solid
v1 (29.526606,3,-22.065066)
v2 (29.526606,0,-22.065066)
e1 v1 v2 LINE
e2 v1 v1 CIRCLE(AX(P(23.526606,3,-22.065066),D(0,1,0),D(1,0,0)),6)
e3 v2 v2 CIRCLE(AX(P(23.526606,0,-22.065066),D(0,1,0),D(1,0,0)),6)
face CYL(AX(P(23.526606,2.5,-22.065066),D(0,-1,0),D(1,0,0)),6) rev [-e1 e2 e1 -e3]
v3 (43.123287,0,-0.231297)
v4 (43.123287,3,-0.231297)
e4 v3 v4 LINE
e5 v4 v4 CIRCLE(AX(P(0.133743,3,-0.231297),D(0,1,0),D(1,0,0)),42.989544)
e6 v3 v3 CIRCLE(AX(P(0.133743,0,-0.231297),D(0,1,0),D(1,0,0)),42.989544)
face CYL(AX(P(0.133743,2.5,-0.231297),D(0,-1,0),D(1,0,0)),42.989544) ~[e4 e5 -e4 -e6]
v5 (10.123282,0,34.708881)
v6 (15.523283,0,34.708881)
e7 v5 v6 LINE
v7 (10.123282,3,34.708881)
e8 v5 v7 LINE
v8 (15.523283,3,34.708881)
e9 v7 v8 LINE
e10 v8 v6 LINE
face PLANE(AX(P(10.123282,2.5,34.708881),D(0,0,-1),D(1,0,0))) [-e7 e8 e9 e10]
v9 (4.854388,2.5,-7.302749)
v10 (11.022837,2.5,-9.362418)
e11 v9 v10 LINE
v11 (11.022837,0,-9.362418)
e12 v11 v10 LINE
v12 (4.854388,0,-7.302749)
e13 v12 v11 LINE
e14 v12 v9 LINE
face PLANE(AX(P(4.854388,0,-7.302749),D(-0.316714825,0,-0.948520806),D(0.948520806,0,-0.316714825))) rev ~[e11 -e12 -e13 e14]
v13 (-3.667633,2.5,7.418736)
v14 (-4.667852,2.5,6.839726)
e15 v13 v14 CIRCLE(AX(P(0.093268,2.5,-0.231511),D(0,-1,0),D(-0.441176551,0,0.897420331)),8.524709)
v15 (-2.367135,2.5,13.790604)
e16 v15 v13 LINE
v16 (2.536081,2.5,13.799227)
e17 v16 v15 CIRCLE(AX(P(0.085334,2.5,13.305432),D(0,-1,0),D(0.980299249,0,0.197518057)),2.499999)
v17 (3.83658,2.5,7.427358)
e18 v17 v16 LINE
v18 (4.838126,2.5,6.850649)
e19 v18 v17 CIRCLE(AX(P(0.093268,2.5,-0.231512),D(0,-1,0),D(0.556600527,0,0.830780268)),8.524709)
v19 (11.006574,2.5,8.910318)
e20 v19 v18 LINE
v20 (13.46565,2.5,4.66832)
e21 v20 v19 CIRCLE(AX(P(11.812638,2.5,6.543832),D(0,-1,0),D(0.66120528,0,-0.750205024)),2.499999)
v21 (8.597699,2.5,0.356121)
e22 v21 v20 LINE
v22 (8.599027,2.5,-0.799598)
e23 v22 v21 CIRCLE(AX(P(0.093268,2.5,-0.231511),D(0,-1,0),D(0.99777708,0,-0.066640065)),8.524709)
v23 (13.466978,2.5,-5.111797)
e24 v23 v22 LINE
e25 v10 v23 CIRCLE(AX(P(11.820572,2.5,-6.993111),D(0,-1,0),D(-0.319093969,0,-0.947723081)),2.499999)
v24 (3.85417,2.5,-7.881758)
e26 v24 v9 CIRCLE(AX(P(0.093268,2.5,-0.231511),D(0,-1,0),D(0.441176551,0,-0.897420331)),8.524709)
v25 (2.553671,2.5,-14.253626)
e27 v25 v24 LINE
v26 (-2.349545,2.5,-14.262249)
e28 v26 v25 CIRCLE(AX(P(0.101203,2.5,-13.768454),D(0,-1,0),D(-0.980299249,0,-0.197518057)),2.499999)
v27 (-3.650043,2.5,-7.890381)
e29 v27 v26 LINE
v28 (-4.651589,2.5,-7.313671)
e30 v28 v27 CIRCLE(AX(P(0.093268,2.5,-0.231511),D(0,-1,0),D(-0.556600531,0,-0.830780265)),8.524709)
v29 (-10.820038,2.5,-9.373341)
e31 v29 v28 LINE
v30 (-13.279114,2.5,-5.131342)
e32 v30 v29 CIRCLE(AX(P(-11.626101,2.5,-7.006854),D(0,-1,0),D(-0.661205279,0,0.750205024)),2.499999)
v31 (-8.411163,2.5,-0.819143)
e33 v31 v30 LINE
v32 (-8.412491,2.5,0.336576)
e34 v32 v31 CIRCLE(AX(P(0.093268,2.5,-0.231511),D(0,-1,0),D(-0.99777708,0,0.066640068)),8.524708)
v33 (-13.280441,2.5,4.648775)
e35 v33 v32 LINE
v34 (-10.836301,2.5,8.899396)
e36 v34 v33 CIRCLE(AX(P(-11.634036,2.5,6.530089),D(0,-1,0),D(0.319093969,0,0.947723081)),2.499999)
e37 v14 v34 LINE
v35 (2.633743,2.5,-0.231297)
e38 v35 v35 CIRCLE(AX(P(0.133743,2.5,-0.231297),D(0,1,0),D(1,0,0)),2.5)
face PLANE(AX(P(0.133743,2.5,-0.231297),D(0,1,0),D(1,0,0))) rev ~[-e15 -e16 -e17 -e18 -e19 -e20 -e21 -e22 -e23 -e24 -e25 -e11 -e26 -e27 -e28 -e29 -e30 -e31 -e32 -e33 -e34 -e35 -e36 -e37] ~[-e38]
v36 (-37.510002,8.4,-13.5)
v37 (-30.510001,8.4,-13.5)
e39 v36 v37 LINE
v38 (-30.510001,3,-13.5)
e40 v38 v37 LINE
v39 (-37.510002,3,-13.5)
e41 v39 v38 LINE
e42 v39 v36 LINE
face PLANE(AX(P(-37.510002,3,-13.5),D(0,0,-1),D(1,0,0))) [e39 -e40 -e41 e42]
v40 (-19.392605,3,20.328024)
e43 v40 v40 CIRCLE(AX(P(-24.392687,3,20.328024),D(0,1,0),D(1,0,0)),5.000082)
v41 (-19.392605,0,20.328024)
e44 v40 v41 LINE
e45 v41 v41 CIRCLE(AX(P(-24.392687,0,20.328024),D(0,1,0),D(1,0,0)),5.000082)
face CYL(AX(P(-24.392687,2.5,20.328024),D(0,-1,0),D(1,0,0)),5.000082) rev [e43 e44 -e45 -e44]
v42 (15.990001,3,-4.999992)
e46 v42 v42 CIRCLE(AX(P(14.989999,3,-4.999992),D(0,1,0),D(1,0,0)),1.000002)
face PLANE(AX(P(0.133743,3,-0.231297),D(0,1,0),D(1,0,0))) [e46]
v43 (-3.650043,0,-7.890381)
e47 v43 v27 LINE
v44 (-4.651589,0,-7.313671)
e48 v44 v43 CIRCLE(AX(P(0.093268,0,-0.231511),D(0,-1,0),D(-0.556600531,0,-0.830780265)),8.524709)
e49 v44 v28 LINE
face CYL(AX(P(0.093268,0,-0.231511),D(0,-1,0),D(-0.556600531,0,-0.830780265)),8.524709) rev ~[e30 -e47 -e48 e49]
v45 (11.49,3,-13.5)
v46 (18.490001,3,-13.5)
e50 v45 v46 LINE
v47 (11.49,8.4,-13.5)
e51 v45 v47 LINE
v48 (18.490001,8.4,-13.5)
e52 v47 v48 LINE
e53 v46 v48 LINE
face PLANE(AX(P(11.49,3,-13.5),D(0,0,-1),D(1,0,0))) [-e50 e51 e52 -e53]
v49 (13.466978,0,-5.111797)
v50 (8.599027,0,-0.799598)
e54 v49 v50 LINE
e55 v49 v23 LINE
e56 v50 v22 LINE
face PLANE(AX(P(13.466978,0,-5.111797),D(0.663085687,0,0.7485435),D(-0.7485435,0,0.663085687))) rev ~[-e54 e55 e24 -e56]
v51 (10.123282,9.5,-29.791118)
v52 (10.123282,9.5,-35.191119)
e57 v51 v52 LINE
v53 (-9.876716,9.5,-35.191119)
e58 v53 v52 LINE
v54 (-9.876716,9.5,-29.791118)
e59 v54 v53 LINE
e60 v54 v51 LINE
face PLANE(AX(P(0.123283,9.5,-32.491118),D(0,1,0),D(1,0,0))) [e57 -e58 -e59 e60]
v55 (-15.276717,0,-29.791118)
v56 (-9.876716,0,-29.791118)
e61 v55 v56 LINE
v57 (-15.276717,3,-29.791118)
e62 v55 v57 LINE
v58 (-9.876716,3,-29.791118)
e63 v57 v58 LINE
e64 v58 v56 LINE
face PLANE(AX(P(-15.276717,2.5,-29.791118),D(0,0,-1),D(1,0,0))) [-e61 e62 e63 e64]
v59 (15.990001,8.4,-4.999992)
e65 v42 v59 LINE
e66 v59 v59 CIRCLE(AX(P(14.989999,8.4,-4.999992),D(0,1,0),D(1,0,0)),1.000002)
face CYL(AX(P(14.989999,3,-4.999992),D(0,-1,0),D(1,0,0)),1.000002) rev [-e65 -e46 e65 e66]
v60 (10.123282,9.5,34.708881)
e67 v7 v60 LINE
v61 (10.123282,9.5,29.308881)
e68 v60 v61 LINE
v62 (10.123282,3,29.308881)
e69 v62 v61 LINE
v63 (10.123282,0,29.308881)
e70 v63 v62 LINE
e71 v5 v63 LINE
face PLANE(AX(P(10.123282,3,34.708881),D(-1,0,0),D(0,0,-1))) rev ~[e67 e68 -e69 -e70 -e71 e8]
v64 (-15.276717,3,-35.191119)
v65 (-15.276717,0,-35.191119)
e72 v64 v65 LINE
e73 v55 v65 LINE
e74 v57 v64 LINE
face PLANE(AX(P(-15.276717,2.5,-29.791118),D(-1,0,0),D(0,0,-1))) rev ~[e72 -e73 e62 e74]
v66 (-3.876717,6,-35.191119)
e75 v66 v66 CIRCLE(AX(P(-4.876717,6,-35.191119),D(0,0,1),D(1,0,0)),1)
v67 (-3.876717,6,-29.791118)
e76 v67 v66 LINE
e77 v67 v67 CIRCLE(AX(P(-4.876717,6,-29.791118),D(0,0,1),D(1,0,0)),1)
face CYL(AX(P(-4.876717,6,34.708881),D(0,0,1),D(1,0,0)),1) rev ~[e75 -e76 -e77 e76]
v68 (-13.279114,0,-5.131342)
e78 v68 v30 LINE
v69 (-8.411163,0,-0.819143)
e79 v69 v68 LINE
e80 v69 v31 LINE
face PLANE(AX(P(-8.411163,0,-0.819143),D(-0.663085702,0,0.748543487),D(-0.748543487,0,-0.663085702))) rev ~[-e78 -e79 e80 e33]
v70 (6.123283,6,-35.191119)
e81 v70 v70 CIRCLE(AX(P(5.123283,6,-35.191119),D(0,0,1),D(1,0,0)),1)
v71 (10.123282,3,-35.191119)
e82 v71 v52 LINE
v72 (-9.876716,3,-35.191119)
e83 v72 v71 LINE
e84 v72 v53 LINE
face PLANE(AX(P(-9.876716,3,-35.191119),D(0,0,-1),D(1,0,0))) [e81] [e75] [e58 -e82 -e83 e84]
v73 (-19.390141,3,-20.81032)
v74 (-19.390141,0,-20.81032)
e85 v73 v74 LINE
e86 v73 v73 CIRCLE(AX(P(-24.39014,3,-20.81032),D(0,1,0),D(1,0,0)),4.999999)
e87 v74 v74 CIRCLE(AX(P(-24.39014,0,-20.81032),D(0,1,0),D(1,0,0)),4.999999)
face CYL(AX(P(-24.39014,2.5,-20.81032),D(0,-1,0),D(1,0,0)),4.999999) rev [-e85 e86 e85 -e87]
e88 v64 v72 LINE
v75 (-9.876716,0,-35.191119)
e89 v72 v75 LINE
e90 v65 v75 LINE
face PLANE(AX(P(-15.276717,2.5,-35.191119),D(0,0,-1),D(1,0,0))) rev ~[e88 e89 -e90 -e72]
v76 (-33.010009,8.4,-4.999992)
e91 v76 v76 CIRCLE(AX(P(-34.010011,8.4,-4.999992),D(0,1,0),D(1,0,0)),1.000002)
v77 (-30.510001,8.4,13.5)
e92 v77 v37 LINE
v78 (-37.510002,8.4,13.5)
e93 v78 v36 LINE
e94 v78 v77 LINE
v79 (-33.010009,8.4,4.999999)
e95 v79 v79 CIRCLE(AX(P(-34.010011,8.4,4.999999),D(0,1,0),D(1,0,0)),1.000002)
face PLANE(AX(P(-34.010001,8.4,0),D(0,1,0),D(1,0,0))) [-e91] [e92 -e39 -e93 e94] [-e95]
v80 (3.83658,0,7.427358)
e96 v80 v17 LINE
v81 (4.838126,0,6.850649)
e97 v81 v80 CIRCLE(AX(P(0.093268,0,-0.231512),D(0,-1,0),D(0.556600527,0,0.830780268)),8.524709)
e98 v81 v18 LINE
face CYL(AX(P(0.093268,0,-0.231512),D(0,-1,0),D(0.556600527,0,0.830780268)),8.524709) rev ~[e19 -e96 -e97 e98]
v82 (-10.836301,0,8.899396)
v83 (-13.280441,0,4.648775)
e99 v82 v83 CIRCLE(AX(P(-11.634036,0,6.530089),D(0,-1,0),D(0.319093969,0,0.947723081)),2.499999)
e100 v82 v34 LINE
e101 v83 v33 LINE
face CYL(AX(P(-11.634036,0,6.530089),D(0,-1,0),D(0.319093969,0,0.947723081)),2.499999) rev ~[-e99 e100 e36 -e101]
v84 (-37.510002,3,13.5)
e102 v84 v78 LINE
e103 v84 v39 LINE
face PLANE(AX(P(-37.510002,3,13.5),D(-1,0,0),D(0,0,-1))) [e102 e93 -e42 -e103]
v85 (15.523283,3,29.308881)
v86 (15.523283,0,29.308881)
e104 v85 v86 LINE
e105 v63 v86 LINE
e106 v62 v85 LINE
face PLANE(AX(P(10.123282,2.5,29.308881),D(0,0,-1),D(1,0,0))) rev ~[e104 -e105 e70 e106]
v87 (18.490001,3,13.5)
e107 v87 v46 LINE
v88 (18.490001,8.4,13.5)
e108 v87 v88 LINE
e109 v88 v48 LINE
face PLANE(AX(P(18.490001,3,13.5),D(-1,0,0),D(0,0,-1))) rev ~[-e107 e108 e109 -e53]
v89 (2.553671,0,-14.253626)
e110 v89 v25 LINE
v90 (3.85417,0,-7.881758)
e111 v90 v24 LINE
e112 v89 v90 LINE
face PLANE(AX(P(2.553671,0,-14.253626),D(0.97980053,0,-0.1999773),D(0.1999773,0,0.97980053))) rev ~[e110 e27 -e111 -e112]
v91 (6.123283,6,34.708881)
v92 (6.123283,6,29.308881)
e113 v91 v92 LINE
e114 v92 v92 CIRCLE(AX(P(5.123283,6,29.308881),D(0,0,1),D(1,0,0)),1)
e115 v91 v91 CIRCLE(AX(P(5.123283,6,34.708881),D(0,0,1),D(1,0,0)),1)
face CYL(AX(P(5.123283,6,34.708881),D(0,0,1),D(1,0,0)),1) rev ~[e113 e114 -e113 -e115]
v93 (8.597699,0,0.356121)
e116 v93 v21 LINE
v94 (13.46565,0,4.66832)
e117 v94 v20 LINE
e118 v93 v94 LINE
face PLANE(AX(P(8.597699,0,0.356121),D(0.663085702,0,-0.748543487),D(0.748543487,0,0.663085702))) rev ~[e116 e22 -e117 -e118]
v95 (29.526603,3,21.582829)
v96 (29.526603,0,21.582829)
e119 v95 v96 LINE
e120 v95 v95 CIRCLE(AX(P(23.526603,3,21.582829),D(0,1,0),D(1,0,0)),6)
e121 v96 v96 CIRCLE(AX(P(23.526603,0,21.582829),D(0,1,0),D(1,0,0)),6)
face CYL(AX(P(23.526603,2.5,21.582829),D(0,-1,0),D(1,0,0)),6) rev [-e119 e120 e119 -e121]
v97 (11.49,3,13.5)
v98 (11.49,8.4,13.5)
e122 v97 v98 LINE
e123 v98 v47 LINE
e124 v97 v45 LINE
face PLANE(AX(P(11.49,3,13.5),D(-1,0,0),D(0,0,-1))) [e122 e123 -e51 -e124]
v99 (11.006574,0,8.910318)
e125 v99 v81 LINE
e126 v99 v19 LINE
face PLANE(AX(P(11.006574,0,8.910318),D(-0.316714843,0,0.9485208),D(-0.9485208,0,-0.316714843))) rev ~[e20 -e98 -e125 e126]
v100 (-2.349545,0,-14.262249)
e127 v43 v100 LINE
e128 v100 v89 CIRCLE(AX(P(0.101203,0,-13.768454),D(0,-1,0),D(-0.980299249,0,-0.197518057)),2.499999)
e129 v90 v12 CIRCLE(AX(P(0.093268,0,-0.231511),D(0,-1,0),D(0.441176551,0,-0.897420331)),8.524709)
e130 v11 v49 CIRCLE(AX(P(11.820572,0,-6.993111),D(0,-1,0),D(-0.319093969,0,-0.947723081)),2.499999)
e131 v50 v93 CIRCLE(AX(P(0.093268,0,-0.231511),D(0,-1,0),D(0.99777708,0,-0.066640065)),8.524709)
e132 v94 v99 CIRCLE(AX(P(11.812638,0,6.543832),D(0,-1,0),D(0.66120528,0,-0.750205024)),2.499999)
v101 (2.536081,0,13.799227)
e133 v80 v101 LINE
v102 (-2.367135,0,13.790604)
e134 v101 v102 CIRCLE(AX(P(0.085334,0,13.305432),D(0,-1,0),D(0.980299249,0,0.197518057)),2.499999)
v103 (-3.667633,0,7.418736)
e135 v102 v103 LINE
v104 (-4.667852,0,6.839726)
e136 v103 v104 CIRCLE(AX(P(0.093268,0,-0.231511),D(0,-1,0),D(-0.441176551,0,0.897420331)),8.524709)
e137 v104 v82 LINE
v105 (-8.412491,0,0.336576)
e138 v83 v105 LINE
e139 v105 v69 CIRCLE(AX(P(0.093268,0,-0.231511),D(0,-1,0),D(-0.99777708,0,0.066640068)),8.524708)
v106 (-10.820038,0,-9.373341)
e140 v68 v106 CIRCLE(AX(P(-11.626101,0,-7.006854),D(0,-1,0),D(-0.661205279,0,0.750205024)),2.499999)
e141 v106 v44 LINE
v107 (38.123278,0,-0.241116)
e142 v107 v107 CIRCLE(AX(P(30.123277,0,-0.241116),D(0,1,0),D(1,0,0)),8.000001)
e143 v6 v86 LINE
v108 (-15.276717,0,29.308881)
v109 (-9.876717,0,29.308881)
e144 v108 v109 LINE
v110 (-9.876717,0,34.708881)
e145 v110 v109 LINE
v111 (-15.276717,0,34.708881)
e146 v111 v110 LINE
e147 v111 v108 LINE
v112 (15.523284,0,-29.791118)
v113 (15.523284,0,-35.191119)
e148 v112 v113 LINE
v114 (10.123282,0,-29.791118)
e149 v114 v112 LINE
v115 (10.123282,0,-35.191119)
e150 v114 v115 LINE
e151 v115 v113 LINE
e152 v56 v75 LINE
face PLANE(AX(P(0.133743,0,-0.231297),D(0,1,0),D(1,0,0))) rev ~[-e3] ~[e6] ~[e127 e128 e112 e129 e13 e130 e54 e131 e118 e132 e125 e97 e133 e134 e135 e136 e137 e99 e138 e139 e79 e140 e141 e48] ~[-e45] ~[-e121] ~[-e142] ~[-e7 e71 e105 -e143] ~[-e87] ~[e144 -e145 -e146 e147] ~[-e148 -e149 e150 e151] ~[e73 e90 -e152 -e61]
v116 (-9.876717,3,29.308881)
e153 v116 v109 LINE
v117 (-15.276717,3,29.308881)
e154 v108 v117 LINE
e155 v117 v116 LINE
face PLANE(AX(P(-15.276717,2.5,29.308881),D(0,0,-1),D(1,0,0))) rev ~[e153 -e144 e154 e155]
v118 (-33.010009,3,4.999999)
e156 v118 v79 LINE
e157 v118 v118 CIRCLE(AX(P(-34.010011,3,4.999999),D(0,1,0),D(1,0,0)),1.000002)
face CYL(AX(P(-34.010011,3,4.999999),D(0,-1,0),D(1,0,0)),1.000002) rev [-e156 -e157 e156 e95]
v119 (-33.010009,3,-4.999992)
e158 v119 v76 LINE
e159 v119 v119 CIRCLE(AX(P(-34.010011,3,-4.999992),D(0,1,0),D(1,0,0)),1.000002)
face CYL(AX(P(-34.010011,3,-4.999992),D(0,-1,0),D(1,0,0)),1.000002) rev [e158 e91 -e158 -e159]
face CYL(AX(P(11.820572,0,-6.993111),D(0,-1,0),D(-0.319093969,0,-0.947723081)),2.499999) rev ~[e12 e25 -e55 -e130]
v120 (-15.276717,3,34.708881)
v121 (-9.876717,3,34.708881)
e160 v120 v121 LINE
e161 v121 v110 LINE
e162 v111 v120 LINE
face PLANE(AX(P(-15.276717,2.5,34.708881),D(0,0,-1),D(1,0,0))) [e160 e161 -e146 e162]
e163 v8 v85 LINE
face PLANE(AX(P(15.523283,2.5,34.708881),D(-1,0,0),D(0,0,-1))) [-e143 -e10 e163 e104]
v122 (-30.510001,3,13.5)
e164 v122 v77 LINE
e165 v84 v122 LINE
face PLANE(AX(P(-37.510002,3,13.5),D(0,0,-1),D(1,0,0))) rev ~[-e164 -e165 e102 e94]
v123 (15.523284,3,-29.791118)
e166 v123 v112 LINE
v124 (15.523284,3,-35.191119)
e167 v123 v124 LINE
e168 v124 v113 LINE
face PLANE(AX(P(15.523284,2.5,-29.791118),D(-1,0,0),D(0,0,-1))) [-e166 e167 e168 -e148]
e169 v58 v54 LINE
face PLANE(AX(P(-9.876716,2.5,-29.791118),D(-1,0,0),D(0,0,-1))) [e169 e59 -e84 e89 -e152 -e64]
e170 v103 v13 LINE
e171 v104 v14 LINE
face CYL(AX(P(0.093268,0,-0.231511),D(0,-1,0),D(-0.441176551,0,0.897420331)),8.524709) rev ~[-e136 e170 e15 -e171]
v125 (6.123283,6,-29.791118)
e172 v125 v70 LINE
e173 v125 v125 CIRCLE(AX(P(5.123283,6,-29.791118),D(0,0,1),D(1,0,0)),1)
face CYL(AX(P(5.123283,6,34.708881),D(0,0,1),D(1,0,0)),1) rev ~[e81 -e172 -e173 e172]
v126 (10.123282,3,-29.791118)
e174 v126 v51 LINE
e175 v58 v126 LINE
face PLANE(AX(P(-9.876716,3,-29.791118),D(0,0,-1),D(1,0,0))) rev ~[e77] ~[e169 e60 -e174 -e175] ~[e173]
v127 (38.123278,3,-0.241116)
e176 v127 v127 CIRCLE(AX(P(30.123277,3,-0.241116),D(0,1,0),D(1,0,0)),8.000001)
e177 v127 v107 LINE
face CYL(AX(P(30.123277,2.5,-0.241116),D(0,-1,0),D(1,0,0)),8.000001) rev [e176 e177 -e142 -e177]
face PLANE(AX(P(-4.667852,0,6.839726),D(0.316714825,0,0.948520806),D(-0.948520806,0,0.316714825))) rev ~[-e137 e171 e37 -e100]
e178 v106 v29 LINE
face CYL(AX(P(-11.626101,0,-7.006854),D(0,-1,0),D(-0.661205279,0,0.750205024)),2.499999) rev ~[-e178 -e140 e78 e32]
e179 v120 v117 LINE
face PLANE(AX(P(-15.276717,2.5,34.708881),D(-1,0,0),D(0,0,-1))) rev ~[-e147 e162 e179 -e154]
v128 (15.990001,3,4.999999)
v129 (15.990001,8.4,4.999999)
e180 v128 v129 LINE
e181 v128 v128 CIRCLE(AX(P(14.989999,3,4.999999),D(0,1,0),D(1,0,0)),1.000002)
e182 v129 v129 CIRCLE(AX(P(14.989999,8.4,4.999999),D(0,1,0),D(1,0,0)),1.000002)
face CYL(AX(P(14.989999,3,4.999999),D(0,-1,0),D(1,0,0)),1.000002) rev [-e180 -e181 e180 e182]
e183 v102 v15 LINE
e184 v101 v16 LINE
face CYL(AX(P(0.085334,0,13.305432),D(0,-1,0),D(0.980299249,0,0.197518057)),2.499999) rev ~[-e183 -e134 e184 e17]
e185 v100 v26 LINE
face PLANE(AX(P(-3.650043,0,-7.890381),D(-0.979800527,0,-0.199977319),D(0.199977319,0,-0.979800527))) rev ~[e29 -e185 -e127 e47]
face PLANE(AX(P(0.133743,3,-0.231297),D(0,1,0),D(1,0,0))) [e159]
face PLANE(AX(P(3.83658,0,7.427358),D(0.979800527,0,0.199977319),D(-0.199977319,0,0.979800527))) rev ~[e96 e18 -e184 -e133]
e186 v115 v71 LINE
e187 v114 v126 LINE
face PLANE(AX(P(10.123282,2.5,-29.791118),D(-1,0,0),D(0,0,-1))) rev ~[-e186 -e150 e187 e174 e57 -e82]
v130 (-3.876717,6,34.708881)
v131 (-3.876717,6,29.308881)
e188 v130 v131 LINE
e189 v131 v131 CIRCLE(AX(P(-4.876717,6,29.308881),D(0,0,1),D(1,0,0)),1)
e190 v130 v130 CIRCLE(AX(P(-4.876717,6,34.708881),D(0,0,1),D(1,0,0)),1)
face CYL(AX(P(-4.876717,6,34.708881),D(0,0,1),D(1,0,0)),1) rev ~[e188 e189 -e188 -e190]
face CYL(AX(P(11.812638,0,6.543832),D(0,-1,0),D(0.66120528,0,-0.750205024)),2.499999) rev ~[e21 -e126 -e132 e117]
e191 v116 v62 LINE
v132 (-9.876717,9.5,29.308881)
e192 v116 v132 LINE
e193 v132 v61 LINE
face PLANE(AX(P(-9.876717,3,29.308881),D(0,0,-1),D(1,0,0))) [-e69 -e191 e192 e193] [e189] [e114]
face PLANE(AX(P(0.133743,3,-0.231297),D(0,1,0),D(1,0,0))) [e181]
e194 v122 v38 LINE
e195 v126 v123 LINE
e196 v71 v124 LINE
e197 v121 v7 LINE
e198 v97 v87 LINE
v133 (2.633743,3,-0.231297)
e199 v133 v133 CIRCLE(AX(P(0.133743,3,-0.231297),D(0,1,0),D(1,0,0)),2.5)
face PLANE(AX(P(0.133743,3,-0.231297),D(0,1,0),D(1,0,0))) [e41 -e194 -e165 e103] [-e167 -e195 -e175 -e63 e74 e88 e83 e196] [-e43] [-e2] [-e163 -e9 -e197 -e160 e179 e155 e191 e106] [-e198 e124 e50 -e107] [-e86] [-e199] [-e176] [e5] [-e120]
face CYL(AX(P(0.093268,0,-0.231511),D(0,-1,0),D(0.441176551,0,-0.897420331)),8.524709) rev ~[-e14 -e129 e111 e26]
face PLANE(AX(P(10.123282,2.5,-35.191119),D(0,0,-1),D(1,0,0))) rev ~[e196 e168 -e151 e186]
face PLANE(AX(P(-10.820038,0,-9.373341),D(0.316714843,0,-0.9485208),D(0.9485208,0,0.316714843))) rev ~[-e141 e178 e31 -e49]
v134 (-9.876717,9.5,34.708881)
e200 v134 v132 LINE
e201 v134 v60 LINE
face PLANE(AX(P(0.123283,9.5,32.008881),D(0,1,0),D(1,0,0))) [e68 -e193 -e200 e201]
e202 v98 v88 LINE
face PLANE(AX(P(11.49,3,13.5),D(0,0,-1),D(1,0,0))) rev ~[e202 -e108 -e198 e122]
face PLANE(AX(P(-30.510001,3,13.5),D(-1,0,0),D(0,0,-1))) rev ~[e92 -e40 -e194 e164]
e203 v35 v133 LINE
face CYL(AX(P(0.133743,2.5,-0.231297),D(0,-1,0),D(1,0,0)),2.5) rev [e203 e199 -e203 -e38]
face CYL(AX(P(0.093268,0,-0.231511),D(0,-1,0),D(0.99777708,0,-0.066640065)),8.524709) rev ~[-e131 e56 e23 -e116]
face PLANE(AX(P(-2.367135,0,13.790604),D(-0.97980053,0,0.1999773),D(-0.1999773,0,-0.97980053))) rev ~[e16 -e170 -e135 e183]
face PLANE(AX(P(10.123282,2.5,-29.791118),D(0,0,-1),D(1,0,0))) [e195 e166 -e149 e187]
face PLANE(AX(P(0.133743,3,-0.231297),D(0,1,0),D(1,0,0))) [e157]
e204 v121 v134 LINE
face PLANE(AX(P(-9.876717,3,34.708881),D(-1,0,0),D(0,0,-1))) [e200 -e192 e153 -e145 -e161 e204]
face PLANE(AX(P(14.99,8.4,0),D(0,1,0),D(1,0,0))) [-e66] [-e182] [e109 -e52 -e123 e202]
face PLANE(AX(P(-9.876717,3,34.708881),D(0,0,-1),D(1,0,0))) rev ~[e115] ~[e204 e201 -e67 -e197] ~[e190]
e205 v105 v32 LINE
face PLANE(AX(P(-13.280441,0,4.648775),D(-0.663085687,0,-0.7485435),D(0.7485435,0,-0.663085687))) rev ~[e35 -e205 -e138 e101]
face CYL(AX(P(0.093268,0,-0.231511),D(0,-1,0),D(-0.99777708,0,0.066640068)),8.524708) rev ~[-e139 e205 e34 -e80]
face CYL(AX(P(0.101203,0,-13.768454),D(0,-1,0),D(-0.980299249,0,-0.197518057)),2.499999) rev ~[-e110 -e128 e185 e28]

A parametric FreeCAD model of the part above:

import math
import FreeCAD as App
import Part
import Sketcher
from FreeCAD import Vector


def add_polygon(sketch, points):
    """Adds a closed chain of lines whose ends are joined by coincident constraints."""
    first, n = sketch.GeometryCount, len(points)
    for a, b in zip(points, points[1:] + points[:1]):
        sketch.addGeometry(Part.LineSegment(App.Vector(*a, 0), App.Vector(*b, 0)), False)
    for i in range(n):
        sketch.addConstraint(Sketcher.Constraint("Coincident", first + i, 2, first + (i + 1) % n, 1))

doc = App.newDocument("Part")
params = doc.addObject("Spreadsheet::Sheet", "Params")
for row, (alias, value) in enumerate([
    ("sketch1_diameter", "12 mm"),
    ("sketch1_diameter2", "16.000001 mm"),
    ("sketch1_radius", "2.499999 mm"),
    ("sketch1_width", "5.400001 mm"),
    ("pad1_length", "2.5 mm"),
    ("sketch2_diameter", "5 mm"),
    ("sketch2_diameter2", "12 mm"),
    ("sketch2_diameter3", "16.000001 mm"),
    ("sketch2_width", "5.400001 mm"),
    ("pad2_length", "0.5 mm"),
    ("sketch3_width", "19.999999 mm"),
    ("sketch3_height", "5.400001 mm"),
    ("pad3_length", "6.5 mm"),
    ("sketch4_diameter", "2 mm"),
    ("pocket1_length", "94.5 mm"),
    ("sketch5_width", "7.000001 mm"),
    ("sketch5_height", "27 mm"),
    ("pad4_length", "5.4 mm"),
], start=1):
    params.set(f"A{row}", alias)
    params.set(f"B{row}", "=" + value)
    params.setAlias(f"B{row}", alias)

body = doc.addObject("PartDesign::Body", "Body")

sketch1 = body.newObject("Sketcher::SketchObject", "Sketch")
sketch1.AttachmentSupport = (doc.getObject("XZ_Plane"), [""])
sketch1.MapMode = "FlatFace"
sketch1.addGeometry(Part.Circle(Vector(0.1, -0.2, 0), Vector(0, 0, 1), 43), False)
add_polygon(sketch1, [(-9.9, 34.7), (-15.3, 34.7), (-15.3, 29.3), (-9.9, 29.3)])
sketch1.addGeometry(Part.Circle(Vector(-24.4, 20.3, 0), Vector(0, 0, 1), 5), False)
sketch1.addGeometry(Part.ArcOfCircle(Part.Circle(Vector(0.1, -0.2, 0), Vector(0, 0, 1), 8.5), math.radians(-63.82), math.radians(-56.05)), False)
sketch1.addGeometry(Part.LineSegment(Vector(4.9, -7.3, 0), Vector(11, -9.4, 0)), False)
sketch1.addGeometry(Part.ArcOfCircle(Part.Circle(Vector(11.8, -7, 0), Vector(0, 0, 1), 2.5), math.radians(-109), math.radians(49)), False)
sketch1.addGeometry(Part.LineSegment(Vector(13.5, -5.1, 0), Vector(8.6, -0.8, 0)), False)
sketch1.addGeometry(Part.ArcOfCircle(Part.Circle(Vector(0.1, -0.2, 0), Vector(0, 0, 1), 8.5), math.radians(-3.82), math.radians(3.95)), False)
sketch1.addGeometry(Part.LineSegment(Vector(8.6, 0.4, 0), Vector(13.5, 4.7, 0)), False)
sketch1.addGeometry(Part.ArcOfCircle(Part.Circle(Vector(11.8, 6.5, 0), Vector(0, 0, 1), 2.5), math.radians(-49), math.radians(109)), False)
sketch1.addGeometry(Part.LineSegment(Vector(11, 8.9, 0), Vector(4.8, 6.9, 0)), False)
sketch1.addGeometry(Part.ArcOfCircle(Part.Circle(Vector(0.1, -0.2, 0), Vector(0, 0, 1), 8.5), math.radians(56.18), math.radians(63.95)), False)
sketch1.addGeometry(Part.LineSegment(Vector(3.8, 7.4, 0), Vector(2.5, 13.8, 0)), False)
sketch1.addGeometry(Part.ArcOfCircle(Part.Circle(Vector(0.1, 13.3, 0), Vector(0, 0, 1), 2.5), math.radians(11), math.radians(169)), False)
sketch1.addGeometry(Part.LineSegment(Vector(-2.4, 13.8, 0), Vector(-3.7, 7.4, 0)), False)
sketch1.addGeometry(Part.ArcOfCircle(Part.Circle(Vector(0.1, -0.2, 0), Vector(0, 0, 1), 8.5), math.radians(116.18), math.radians(123.95)), False)
sketch1.addGeometry(Part.LineSegment(Vector(-4.7, 6.8, 0), Vector(-10.8, 8.9, 0)), False)
sketch1.addGeometry(Part.ArcOfCircle(Part.Circle(Vector(-11.6, 6.5, 0), Vector(0, 0, 1), 2.5), math.radians(71), math.radians(229)), False)
sketch1.addGeometry(Part.LineSegment(Vector(-13.3, 4.6, 0), Vector(-8.4, 0.3, 0)), False)
sketch1.addGeometry(Part.ArcOfCircle(Part.Circle(Vector(0.1, -0.2, 0), Vector(0, 0, 1), 8.5), math.radians(176.18), math.radians(183.95)), False)
sketch1.addGeometry(Part.LineSegment(Vector(-8.4, -0.8, 0), Vector(-13.3, -5.1, 0)), False)
sketch1.addGeometry(Part.ArcOfCircle(Part.Circle(Vector(-11.6, -7, 0), Vector(0, 0, 1), 2.5), math.radians(131), math.radians(289)), False)
sketch1.addGeometry(Part.LineSegment(Vector(-10.8, -9.4, 0), Vector(-4.7, -7.3, 0)), False)
sketch1.addGeometry(Part.ArcOfCircle(Part.Circle(Vector(0.1, -0.2, 0), Vector(0, 0, 1), 8.5), math.radians(-123.82), math.radians(-116.05)), False)
sketch1.addGeometry(Part.LineSegment(Vector(-3.7, -7.9, 0), Vector(-2.3, -14.3, 0)), False)
sketch1.addGeometry(Part.ArcOfCircle(Part.Circle(Vector(0.1, -13.8, 0), Vector(0, 0, 1), 2.5), math.radians(-169), math.radians(-11)), False)
sketch1.addGeometry(Part.LineSegment(Vector(2.6, -14.3, 0), Vector(3.9, -7.9, 0)), False)
add_polygon(sketch1, [(15.5, 34.7), (10.1, 34.7), (10.1, 29.3), (15.5, 29.3)])
sketch1.addGeometry(Part.Circle(Vector(23.5, 21.6, 0), Vector(0, 0, 1), 6), False)
sketch1.addGeometry(Part.Circle(Vector(30.1, -0.2, 0), Vector(0, 0, 1), 8), False)
sketch1.addGeometry(Part.Circle(Vector(-24.4, -20.8, 0), Vector(0, 0, 1), 5), False)
add_polygon(sketch1, [(-9.9, -29.8), (-15.3, -29.8), (-15.3, -35.2), (-9.9, -35.2)])
add_polygon(sketch1, [(15.5, -29.8), (10.1, -29.8), (10.1, -35.2), (15.5, -35.2)])
sketch1.addGeometry(Part.Circle(Vector(23.5, -22.1, 0), Vector(0, 0, 1), 6), False)
sketch1.addConstraint([
    Sketcher.Constraint("Coincident", 6, 2, 7, 1),
    Sketcher.Constraint("Coincident", 7, 2, 8, 1),
    Sketcher.Constraint("Coincident", 8, 2, 9, 1),
    Sketcher.Constraint("Coincident", 9, 2, 10, 1),
    Sketcher.Constraint("Coincident", 10, 2, 11, 1),
    Sketcher.Constraint("Coincident", 11, 2, 12, 1),
    Sketcher.Constraint("Coincident", 12, 2, 13, 1),
    Sketcher.Constraint("Coincident", 13, 2, 14, 1),
    Sketcher.Constraint("Coincident", 14, 2, 15, 1),
    Sketcher.Constraint("Coincident", 15, 2, 16, 1),
    Sketcher.Constraint("Coincident", 16, 2, 17, 1),
    Sketcher.Constraint("Coincident", 17, 2, 18, 1),
    Sketcher.Constraint("Coincident", 18, 2, 19, 1),
    Sketcher.Constraint("Coincident", 19, 2, 20, 1),
    Sketcher.Constraint("Coincident", 20, 2, 21, 1),
    Sketcher.Constraint("Coincident", 21, 2, 22, 1),
    Sketcher.Constraint("Coincident", 22, 2, 23, 1),
    Sketcher.Constraint("Coincident", 23, 2, 24, 1),
    Sketcher.Constraint("Coincident", 24, 2, 25, 1),
    Sketcher.Constraint("Coincident", 25, 2, 26, 1),
    Sketcher.Constraint("Coincident", 26, 2, 27, 1),
    Sketcher.Constraint("Coincident", 27, 2, 28, 1),
    Sketcher.Constraint("Coincident", 28, 2, 29, 1),
    Sketcher.Constraint("Coincident", 29, 2, 6, 1),
    Sketcher.Constraint("Horizontal", 1),
    Sketcher.Constraint("Vertical", 2),
    Sketcher.Constraint("Horizontal", 3),
    Sketcher.Constraint("Vertical", 4),
    Sketcher.Constraint("Horizontal", 30),
    Sketcher.Constraint("Vertical", 31),
    Sketcher.Constraint("Horizontal", 32),
    Sketcher.Constraint("Vertical", 33),
    Sketcher.Constraint("Horizontal", 37),
    Sketcher.Constraint("Vertical", 38),
    Sketcher.Constraint("Horizontal", 39),
    Sketcher.Constraint("Vertical", 40),
    Sketcher.Constraint("Horizontal", 41),
    Sketcher.Constraint("Vertical", 42),
    Sketcher.Constraint("Horizontal", 43),
    Sketcher.Constraint("Vertical", 44),
    Sketcher.Constraint("Coincident", 10, 3, 6, 3),
    Sketcher.Constraint("Coincident", 14, 3, 6, 3),
    Sketcher.Constraint("Coincident", 18, 3, 6, 3),
    Sketcher.Constraint("Coincident", 22, 3, 6, 3),
    Sketcher.Constraint("Coincident", 26, 3, 6, 3),
    Sketcher.Constraint("Equal", 6, 10),
    Sketcher.Constraint("Equal", 8, 12),
    Sketcher.Constraint("Equal", 10, 14),
    Sketcher.Constraint("Equal", 12, 16),
    Sketcher.Constraint("Equal", 14, 18),
    Sketcher.Constraint("Equal", 16, 20),
    Sketcher.Constraint("Equal", 18, 22),
    Sketcher.Constraint("Equal", 20, 24),
    Sketcher.Constraint("Equal", 22, 26),
    Sketcher.Constraint("Equal", 24, 28),
    Sketcher.Constraint("Equal", 34, 45),
    Sketcher.Constraint("Parallel", 7, 19),
    Sketcher.Constraint("Parallel", 9, 21),
    Sketcher.Constraint("Parallel", 11, 23),
    Sketcher.Constraint("Parallel", 13, 25),
    Sketcher.Constraint("Parallel", 15, 27),
    Sketcher.Constraint("Parallel", 17, 29),
    Sketcher.Constraint("Horizontal", 4, 2, 30, 2),
    Sketcher.Constraint("Horizontal", 3, 2, 31, 2),
    Sketcher.Constraint("Horizontal", 40, 2, 41, 2),
    Sketcher.Constraint("Horizontal", 39, 2, 42, 2),
    Sketcher.Constraint("Vertical", 2, 2, 37, 2),
    Sketcher.Constraint("Vertical", 4, 2, 39, 2),
    Sketcher.Constraint("Vertical", 31, 2, 41, 2),
    Sketcher.Constraint("Vertical", 33, 2, 43, 2),
    Sketcher.Constraint("Equal", 3, 30),
    Sketcher.Constraint("Equal", 43, 2),
    Sketcher.Constraint("Equal", 33, 38),
    Sketcher.Constraint("Equal", 7, 9),
    Sketcher.Constraint("Equal", 9, 11),
    Sketcher.Constraint("Equal", 11, 13),
    Sketcher.Constraint("Equal", 13, 15),
    Sketcher.Constraint("Equal", 15, 17),
    Sketcher.Constraint("Equal", 17, 19),
    Sketcher.Constraint("Equal", 19, 21),
    Sketcher.Constraint("Equal", 21, 23),
    Sketcher.Constraint("Equal", 23, 25),
    Sketcher.Constraint("Equal", 25, 27),
    Sketcher.Constraint("Equal", 27, 29),
    Sketcher.Constraint("Diameter", 34, 12.0),
    Sketcher.Constraint("Diameter", 35, 16.000001),
    Sketcher.Constraint("Radius", 8, 2.499999),
    Sketcher.Constraint("DistanceX", 1, 2, 1, 1, 5.400001),
    Sketcher.Constraint("DistanceX", 4, 2, 30, 2, 19.999999),
    Sketcher.Constraint("Radius", 6, 8.524709),
    Sketcher.Constraint("Diameter", 0, 85.979088),
    Sketcher.Constraint("Diameter", 5, 10.000164),
    Sketcher.Constraint("Diameter", 36, 9.999998),
    Sketcher.Constraint("DistanceY", 11, 2, 12, 2, 4.241998),
    Sketcher.Constraint("DistanceY", 24, 2, 23, 2, 4.241998),
    Sketcher.Constraint("DistanceX", 24, 3, -1, 1, 11.626101),
    Sketcher.Constraint("DistanceY", 9, 2, -1, 1, 0.799598),
    Sketcher.Constraint("DistanceX", -1, 1, 10, 2, 8.597699),
    Sketcher.Constraint("DistanceX", 19, 2, -1, 1, 10.836301),
    Sketcher.Constraint("DistanceY", 8, 3, 6, 3, 6.7616),
    Sketcher.Constraint("DistanceY", 12, 3, 16, 3, 6.7616),
    Sketcher.Constraint("DistanceY", 10, 3, 20, 3, 6.7616),
    Sketcher.Constraint("DistanceY", 45, 3, 12, 3, 28.608898),
    Sketcher.Constraint("DistanceY", 8, 2, 0, 3, 4.8805),
    Sketcher.Constraint("DistanceY", 8, 2, 9, 2, 4.312199),
    Sketcher.Constraint("DistanceY", 10, 2, 11, 2, 4.312199),
    Sketcher.Constraint("DistanceX", 15, 2, 14, 2, 1.300499),
    Sketcher.Constraint("DistanceX", 20, 3, 16, 2, 9.266901),
    Sketcher.Constraint("DistanceX", 17, 2, 16, 2, 1.300498),
    Sketcher.Constraint("DistanceX", 17, 2, 22, 3, 3.760901),
    Sketcher.Constraint("DistanceY", 27, 2, 6, 2, 6.959501),
    Sketcher.Constraint("DistanceX", 15, 2, 30, 2, 7.587201),
    Sketcher.Constraint("DistanceY", 38, 2, 36, 3, 14.380799),
    Sketcher.Constraint("Distance", 7, 6.50323),
    Sketcher.Constraint("DistanceX", -1, 1, 6, 3, 0.093268),
    Sketcher.Constraint("DistanceY", 6, 3, -1, 1, 0.231511),
    Sketcher.Constraint("DistanceY", -1, 1, 12, 3, 6.543832),
    Sketcher.Constraint("DistanceY", -1, 1, 34, 3, 21.582829),
    Sketcher.Constraint("DistanceX", 36, 3, -1, 1, 24.39014),
    Sketcher.Constraint("DistanceY", 36, 3, -1, 1, 20.81032),
    Sketcher.Constraint("DistanceY", -1, 1, 1, 2, 34.708881),
    Sketcher.Constraint("DistanceX", -1, 1, 28, 2, 2.553671),
    Sketcher.Constraint("DistanceX", 5, 3, 0, 3, 24.52643),
    Sketcher.Constraint("DistanceY", 0, 3, 5, 3, 20.559321),
    Sketcher.Constraint("DistanceX", 0, 3, 8, 3, 11.686829),
    Sketcher.Constraint("DistanceX", 16, 3, 34, 3, 23.441269),
    Sketcher.Constraint("DistanceX", 12, 3, 35, 3, 18.31064),
    Sketcher.Constraint("DistanceY", 35, 3, 0, 3, 0.009819),
    Sketcher.Constraint("DistanceX", 45, 3, 35, 3, 6.596672),
])
sketch1.setExpression("Constraints[100]", "Params.sketch1_diameter")
sketch1.setExpression("Constraints[101]", "Params.sketch1_diameter2")
sketch1.setExpression("Constraints[102]", "Params.sketch1_radius")
sketch1.setExpression("Constraints[103]", "Params.sketch1_width")
pad1 = body.newObject("PartDesign::Pad", "Pad")
pad1.Profile = sketch1
pad1.setExpression("Length", "Params.pad1_length")
pad1.Reversed = True

sketch2 = body.newObject("Sketcher::SketchObject", "Sketch001")
sketch2.AttachmentSupport = (doc.getObject("XZ_Plane"), [""])
sketch2.MapMode = "FlatFace"
sketch2.AttachmentOffset = App.Placement(Vector(0, 0, -2.5), App.Rotation())
sketch2.addGeometry(Part.Circle(Vector(0.1, -0.2, 0), Vector(0, 0, 1), 43), False)
add_polygon(sketch2, [(-9.9, 34.7), (-15.3, 34.7), (-15.3, 29.3), (-9.9, 29.3)])
sketch2.addGeometry(Part.Circle(Vector(-24.4, 20.3, 0), Vector(0, 0, 1), 5), False)
sketch2.addGeometry(Part.Circle(Vector(0.1, -0.2, 0), Vector(0, 0, 1), 2.5), False)
add_polygon(sketch2, [(15.5, 34.7), (10.1, 34.7), (10.1, 29.3), (15.5, 29.3)])
sketch2.addGeometry(Part.Circle(Vector(23.5, 21.6, 0), Vector(0, 0, 1), 6), False)
sketch2.addGeometry(Part.Circle(Vector(30.1, -0.2, 0), Vector(0, 0, 1), 8), False)
sketch2.addGeometry(Part.Circle(Vector(-24.4, -20.8, 0), Vector(0, 0, 1), 5), False)
add_polygon(sketch2, [(-9.9, -29.8), (-15.3, -29.8), (-15.3, -35.2), (-9.9, -35.2)])
add_polygon(sketch2, [(15.5, -29.8), (10.1, -29.8), (10.1, -35.2), (15.5, -35.2)])
sketch2.addGeometry(Part.Circle(Vector(23.5, -22.1, 0), Vector(0, 0, 1), 6), False)
sketch2.addConstraint([
    Sketcher.Constraint("Horizontal", 1),
    Sketcher.Constraint("Vertical", 2),
    Sketcher.Constraint("Horizontal", 3),
    Sketcher.Constraint("Vertical", 4),
    Sketcher.Constraint("Horizontal", 7),
    Sketcher.Constraint("Vertical", 8),
    Sketcher.Constraint("Horizontal", 9),
    Sketcher.Constraint("Vertical", 10),
    Sketcher.Constraint("Horizontal", 14),
    Sketcher.Constraint("Vertical", 15),
    Sketcher.Constraint("Horizontal", 16),
    Sketcher.Constraint("Vertical", 17),
    Sketcher.Constraint("Horizontal", 18),
    Sketcher.Constraint("Vertical", 19),
    Sketcher.Constraint("Horizontal", 20),
    Sketcher.Constraint("Vertical", 21),
    Sketcher.Constraint("Coincident", 6, 3, 0, 3),
    Sketcher.Constraint("Equal", 11, 22),
    Sketcher.Constraint("Horizontal", 4, 2, 7, 2),
    Sketcher.Constraint("Horizontal", 3, 2, 8, 2),
    Sketcher.Constraint("Horizontal", 17, 2, 18, 2),
    Sketcher.Constraint("Horizontal", 16, 2, 19, 2),
    Sketcher.Constraint("Vertical", 2, 2, 14, 2),
    Sketcher.Constraint("Vertical", 4, 2, 16, 2),
    Sketcher.Constraint("Vertical", 8, 2, 18, 2),
    Sketcher.Constraint("Vertical", 10, 2, 20, 2),
    Sketcher.Constraint("Equal", 3, 7),
    Sketcher.Constraint("Equal", 20, 2),
    Sketcher.Constraint("Equal", 10, 15),
    Sketcher.Constraint("Diameter", 6, 5.0),
    Sketcher.Constraint("Diameter", 11, 12.0),
    Sketcher.Constraint("Diameter", 12, 16.000001),
    Sketcher.Constraint("DistanceX", 1, 2, 1, 1, 5.400001),
    Sketcher.Constraint("DistanceX", 4, 2, 7, 2, 19.999999),
    Sketcher.Constraint("Diameter", 0, 85.979088),
    Sketcher.Constraint("Diameter", 5, 10.000164),
    Sketcher.Constraint("Diameter", 13, 9.999998),
    Sketcher.Constraint("DistanceY", 13, 3, 1, 2, 55.519201),
    Sketcher.Constraint("DistanceY", 15, 2, 13, 3, 14.380799),
    Sketcher.Constraint("DistanceY", -1, 1, 11, 3, 21.582829),
    Sketcher.Constraint("DistanceX", 13, 3, -1, 1, 24.39014),
    Sketcher.Constraint("DistanceY", 13, 3, -1, 1, 20.81032),
    Sketcher.Constraint("DistanceX", 5, 3, 0, 3, 24.52643),
    Sketcher.Constraint("DistanceY", 0, 3, 5, 3, 20.559321),
    Sketcher.Constraint("DistanceX", 0, 3, 11, 3, 23.39286),
    Sketcher.Constraint("DistanceY", 12, 3, 0, 3, 0.009819),
    Sketcher.Constraint("DistanceX", 22, 3, 12, 3, 6.596672),
    Sketcher.Constraint("DistanceY", 22, 3, 12, 3, 21.823951),
    Sketcher.Constraint("DistanceX", 5, 3, 1, 2, 9.11597),
    Sketcher.Constraint("DistanceY", 0, 3, 1, 2, 34.940179),
    Sketcher.Constraint("DistanceX", 16, 2, 22, 3, 33.403321),
    Sketcher.Constraint("DistanceX", -1, 1, 0, 3, 0.133743),
])
sketch2.setExpression("Constraints[45]", "Params.sketch2_diameter")
sketch2.setExpression("Constraints[46]", "Params.sketch2_diameter2")
sketch2.setExpression("Constraints[47]", "Params.sketch2_diameter3")
sketch2.setExpression("Constraints[48]", "Params.sketch2_width")
pad2 = body.newObject("PartDesign::Pad", "Pad001")
pad2.Profile = sketch2
pad2.setExpression("Length", "Params.pad2_length")
pad2.Reversed = True

sketch3 = body.newObject("Sketcher::SketchObject", "Sketch002")
sketch3.AttachmentSupport = (doc.getObject("XZ_Plane"), [""])
sketch3.MapMode = "FlatFace"
sketch3.AttachmentOffset = App.Placement(Vector(0, 0, -3), App.Rotation())
add_polygon(sketch3, [(-10, 29), (-10, 35), (10, 35), (10, 29)])
add_polygon(sketch3, [(-10, -35), (-10, -30), (10, -30), (10, -35)])
sketch3.addConstraint([
    Sketcher.Constraint("Vertical", 0),
    Sketcher.Constraint("Horizontal", 1),
    Sketcher.Constraint("Vertical", 2),
    Sketcher.Constraint("Horizontal", 3),
    Sketcher.Constraint("Vertical", 4),
    Sketcher.Constraint("Horizontal", 5),
    Sketcher.Constraint("Vertical", 6),
    Sketcher.Constraint("Horizontal", 7),
    Sketcher.Constraint("Vertical", 3, 2, 4, 2),
    Sketcher.Constraint("Vertical", 2, 2, 5, 2),
    Sketcher.Constraint("Equal", 2, 4),
    Sketcher.Constraint("DistanceX", 1, 1, 1, 2, 19.999999),
    Sketcher.Constraint("DistanceY", 0, 1, 0, 2, 5.400001),
    Sketcher.Constraint("DistanceY", 4, 2, 3, 2, 59.099998),
    Sketcher.Constraint("DistanceY", -1, 1, 0, 2, 34.708881),
    Sketcher.Constraint("DistanceX", 0, 2, -1, 1, 9.876717),
])
sketch3.setExpression("Constraints[19]", "Params.sketch3_width")
sketch3.setExpression("Constraints[20]", "Params.sketch3_height")
pad3 = body.newObject("PartDesign::Pad", "Pad002")
pad3.Profile = sketch3
pad3.setExpression("Length", "Params.pad3_length")
pad3.Reversed = True

sketch4 = body.newObject("Sketcher::SketchObject", "Sketch003")
sketch4.AttachmentSupport = (doc.getObject("XY_Plane"), [""])
sketch4.MapMode = "FlatFace"
sketch4.AttachmentOffset = App.Placement(Vector(0, 0, 34.708881), App.Rotation())
sketch4.addGeometry([
    Part.Circle(Vector(-4.9, 6, 0), Vector(0, 0, 1), 1),
    Part.Circle(Vector(5.1, 6, 0), Vector(0, 0, 1), 1),
], False)
sketch4.addConstraint([
    Sketcher.Constraint("Equal", 0, 1),
    Sketcher.Constraint("Horizontal", 0, 3, 1, 3),
    Sketcher.Constraint("Diameter", 0, 2.0),
    Sketcher.Constraint("DistanceY", -1, 1, 0, 3, 6.0),
    Sketcher.Constraint("DistanceX", 0, 3, 1, 3, 10.0),
    Sketcher.Constraint("DistanceX", 0, 3, -1, 1, 4.876717),
])
sketch4.setExpression("Constraints[2]", "Params.sketch4_diameter")
pocket1 = body.newObject("PartDesign::Pocket", "Pocket")
pocket1.Profile = sketch4
pocket1.setExpression("Length", "Params.pocket1_length")

sketch5 = body.newObject("Sketcher::SketchObject", "Sketch004")
sketch5.AttachmentSupport = (doc.getObject("XZ_Plane"), [""])
sketch5.MapMode = "FlatFace"
sketch5.AttachmentOffset = App.Placement(Vector(0, 0, -3), App.Rotation())
add_polygon(sketch5, [(-37.5, -13.5), (-37.5, 13.5), (-30.5, 13.5), (-30.5, -13.5)])
sketch5.addGeometry(Part.Circle(Vector(-34, 5, 0), Vector(0, 0, 1), 1), False)
sketch5.addGeometry(Part.Circle(Vector(-34, -5, 0), Vector(0, 0, 1), 1), False)
add_polygon(sketch5, [(11.5, -13.5), (11.5, 13.5), (18.5, 13.5), (18.5, -13.5)])
sketch5.addGeometry(Part.Circle(Vector(15, 5, 0), Vector(0, 0, 1), 1), False)
sketch5.addGeometry(Part.Circle(Vector(15, -5, 0), Vector(0, 0, 1), 1), False)
sketch5.addConstraint([
    Sketcher.Constraint("Vertical", 0),
    Sketcher.Constraint("Horizontal", 1),
    Sketcher.Constraint("Vertical", 2),
    Sketcher.Constraint("Horizontal", 3),
    Sketcher.Constraint("Vertical", 6),
    Sketcher.Constraint("Horizontal", 7),
    Sketcher.Constraint("Vertical", 8),
    Sketcher.Constraint("Horizontal", 9),
    Sketcher.Constraint("Equal", 4, 5),
    Sketcher.Constraint("Equal", 5, 10),
    Sketcher.Constraint("Equal", 10, 11),
    Sketcher.Constraint("Symmetric", 4, 3, 5, 3, -1),
    Sketcher.Constraint("Symmetric", 10, 3, 11, 3, -1),
    Sketcher.Constraint("Horizontal", 4, 3, 10, 3),
    Sketcher.Constraint("Horizontal", 1, 2, 6, 2),
    Sketcher.Constraint("Horizontal", 3, 2, 8, 2),
    Sketcher.Constraint("Equal", 3, 7),
    Sketcher.Constraint("DistanceX", 1, 1, 1, 2, 7.000001),
    Sketcher.Constraint("DistanceY", 0, 1, 0, 2, 27.0),
    Sketcher.Constraint("DistanceY", -1, 1, 4, 3, 4.999999),
    Sketcher.Constraint("DistanceX", 1, 2, 6, 2, 42.000001),
    Sketcher.Constraint("DistanceY", -1, 1, 0, 2, 13.5),
    Sketcher.Constraint("DistanceX", 0, 2, 10, 3, 52.500001),
    Sketcher.Constraint("DistanceX", -1, 1, 10, 3, 14.989999),
    Sketcher.Constraint("Diameter", 4, 2.000003),
    Sketcher.Constraint("DistanceX", 4, 3, -1, 1, 34.010011),
])
sketch5.setExpression("Constraints[25]", "Params.sketch5_width")
sketch5.setExpression("Constraints[26]", "Params.sketch5_height")
pad4 = body.newObject("PartDesign::Pad", "Pad003")
pad4.Profile = sketch5
pad4.setExpression("Length", "Params.pad4_length")
pad4.Reversed = True

doc.recompute()
